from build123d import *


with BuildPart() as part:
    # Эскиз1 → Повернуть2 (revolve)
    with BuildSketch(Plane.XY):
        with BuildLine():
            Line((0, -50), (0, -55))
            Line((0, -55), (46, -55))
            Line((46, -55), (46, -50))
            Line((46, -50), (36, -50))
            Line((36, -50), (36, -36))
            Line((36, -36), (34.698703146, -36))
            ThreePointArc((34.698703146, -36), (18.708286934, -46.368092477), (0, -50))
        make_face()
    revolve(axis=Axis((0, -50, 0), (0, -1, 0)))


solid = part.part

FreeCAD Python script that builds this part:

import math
import FreeCAD as App
import Part
import Sketcher

V = App.Vector

doc = App.newDocument("Part")
body = doc.addObject("PartDesign::Body", "Body")

sketch1 = body.newObject("Sketcher::SketchObject", "Sketch")
sketch1.AttachmentSupport = (doc.getObject("XY_Plane"), [""])
sketch1.MapMode = "FlatFace"
sketch1.addGeometry([
    Part.LineSegment(V(0, -50, 0), V(0, -55, 0)),
    Part.LineSegment(V(0, -55, 0), V(46, -55, 0)),
    Part.LineSegment(V(46, -55, 0), V(46, -50, 0)),
    Part.LineSegment(V(46, -50, 0), V(36, -50, 0)),
    Part.LineSegment(V(36, -50, 0), V(36, -36, 0)),
    Part.LineSegment(V(36, -36, 0), V(34.7, -36, 0)),
    Part.ArcOfCircle(Part.Circle(V(0, 0, 0), V(0, 0, 1), 50), math.radians(-90), math.radians(-46)),
], False)
sketch1.addConstraint([
    Sketcher.Constraint("Coincident", 0, 2, 1, 1),
    Sketcher.Constraint("Coincident", 1, 2, 2, 1),
    Sketcher.Constraint("Coincident", 2, 2, 3, 1),
    Sketcher.Constraint("Coincident", 3, 2, 4, 1),
    Sketcher.Constraint("Coincident", 4, 2, 5, 1),
    Sketcher.Constraint("Coincident", 5, 2, 6, 2),
    Sketcher.Constraint("Coincident", 6, 1, 0, 1),
    Sketcher.Constraint("Vertical", 0),
    Sketcher.Constraint("Horizontal", 1),
    Sketcher.Constraint("Vertical", 2),
    Sketcher.Constraint("Horizontal", 3),
    Sketcher.Constraint("Vertical", 4),
    Sketcher.Constraint("Horizontal", 5),
    Sketcher.Constraint("Coincident", 6, 3, -1, 1),
    Sketcher.Constraint("PointOnObject", 0, 2, -2),
    Sketcher.Constraint("Horizontal", 3, 2, 6, 1),
    Sketcher.Constraint("Radius", 6, 50.0),
    Sketcher.Constraint("DistanceX", 1, 1, 1, 2, 46.0),
    Sketcher.Constraint("DistanceX", 3, 2, 3, 1, 10.0),
    Sketcher.Constraint("DistanceY", 0, 2, 0, 1, 5.0),
    Sketcher.Constraint("DistanceY", 4, 1, 4, 2, 14.0),
])
revolution = body.newObject("PartDesign::Revolution", "Revolution")
revolution.Profile = sketch1
revolution.ReferenceAxis = (sketch1, ["V_Axis"])
revolution.Angle = 360

doc.recompute()
